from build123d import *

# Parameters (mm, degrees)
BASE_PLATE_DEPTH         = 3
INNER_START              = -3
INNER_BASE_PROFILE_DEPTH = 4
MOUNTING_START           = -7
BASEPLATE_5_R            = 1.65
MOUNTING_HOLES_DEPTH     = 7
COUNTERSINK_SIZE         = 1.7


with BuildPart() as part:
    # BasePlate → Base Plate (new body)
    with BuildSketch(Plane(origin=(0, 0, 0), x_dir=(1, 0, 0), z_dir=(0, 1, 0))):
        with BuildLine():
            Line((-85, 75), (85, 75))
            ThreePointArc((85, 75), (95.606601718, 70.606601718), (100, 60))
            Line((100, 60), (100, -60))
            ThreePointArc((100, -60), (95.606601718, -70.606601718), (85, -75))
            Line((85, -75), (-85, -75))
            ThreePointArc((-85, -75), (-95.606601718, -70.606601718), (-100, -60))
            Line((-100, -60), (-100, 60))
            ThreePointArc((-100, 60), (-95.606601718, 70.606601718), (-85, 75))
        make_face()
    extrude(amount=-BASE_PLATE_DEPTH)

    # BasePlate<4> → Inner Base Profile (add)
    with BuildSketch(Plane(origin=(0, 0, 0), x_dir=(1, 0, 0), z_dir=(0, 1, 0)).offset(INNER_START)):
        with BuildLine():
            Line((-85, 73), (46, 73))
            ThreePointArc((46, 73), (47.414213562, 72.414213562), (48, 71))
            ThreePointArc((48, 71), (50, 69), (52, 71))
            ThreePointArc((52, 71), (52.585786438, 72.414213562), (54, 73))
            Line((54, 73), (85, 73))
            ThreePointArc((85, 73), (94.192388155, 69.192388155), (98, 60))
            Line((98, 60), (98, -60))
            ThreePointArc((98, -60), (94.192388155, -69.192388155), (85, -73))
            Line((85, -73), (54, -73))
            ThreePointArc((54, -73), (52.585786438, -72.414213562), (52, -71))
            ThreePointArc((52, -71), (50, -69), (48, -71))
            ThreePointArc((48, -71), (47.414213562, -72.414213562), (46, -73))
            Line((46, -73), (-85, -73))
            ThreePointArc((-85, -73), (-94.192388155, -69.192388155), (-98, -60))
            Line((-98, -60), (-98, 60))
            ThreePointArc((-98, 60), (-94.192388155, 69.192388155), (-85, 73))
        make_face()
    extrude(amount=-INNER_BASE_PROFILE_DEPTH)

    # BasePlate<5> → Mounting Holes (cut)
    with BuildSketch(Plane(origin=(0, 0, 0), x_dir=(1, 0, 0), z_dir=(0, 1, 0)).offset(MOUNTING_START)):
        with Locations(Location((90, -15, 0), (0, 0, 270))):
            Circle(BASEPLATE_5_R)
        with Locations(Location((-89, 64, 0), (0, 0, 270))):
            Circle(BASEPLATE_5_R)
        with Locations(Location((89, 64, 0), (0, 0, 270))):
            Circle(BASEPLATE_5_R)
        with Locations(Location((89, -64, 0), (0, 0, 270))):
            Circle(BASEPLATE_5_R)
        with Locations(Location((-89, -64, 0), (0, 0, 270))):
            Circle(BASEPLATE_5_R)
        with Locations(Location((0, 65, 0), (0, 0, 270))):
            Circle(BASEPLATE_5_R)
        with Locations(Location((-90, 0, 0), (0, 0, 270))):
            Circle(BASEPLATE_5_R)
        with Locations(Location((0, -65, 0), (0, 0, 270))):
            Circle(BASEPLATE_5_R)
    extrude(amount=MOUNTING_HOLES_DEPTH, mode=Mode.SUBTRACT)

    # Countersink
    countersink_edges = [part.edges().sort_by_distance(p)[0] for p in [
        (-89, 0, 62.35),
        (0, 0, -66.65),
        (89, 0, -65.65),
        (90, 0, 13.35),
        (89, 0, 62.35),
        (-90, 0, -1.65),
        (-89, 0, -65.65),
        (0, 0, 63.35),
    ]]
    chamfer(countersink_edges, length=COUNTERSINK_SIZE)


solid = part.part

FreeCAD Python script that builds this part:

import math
import FreeCAD as App
import Part
import Sketcher

V = App.Vector
Q = App.Units.Quantity


def edges_at(feature, points):
    """Names of the edges that pass closest to the given points."""
    edges = feature.Shape.Edges
    near = lambda p: min(range(len(edges)), key=lambda i: edges[i].distToShape(Part.Vertex(*p))[0])
    return sorted({f"Edge{near(p) + 1}" for p in points})

doc = App.newDocument("Part")
body = doc.addObject("PartDesign::Body", "Body")

# Sketch on XZ plane
sketch1 = body.newObject("Sketcher::SketchObject", "Sketch")
sketch1.AttachmentSupport = (doc.getObject("XZ_Plane"), [""])
sketch1.MapMode = "FlatFace"
sketch1.addGeometry([
    Part.LineSegment(V(85, -75, 0), V(-85, -75, 0)),  # 0
    Part.ArcOfCircle(Part.Circle(V(-85, -60, 0), V(0, 0, 1), 15), math.radians(180), math.radians(270)),  # 1
    Part.LineSegment(V(-100, -60, 0), V(-100, 60, 0)),  # 2
    Part.ArcOfCircle(Part.Circle(V(-85, 60, 0), V(0, 0, 1), 15), math.radians(90), math.radians(180)),  # 3
    Part.LineSegment(V(-85, 75, 0), V(85, 75, 0)),  # 4
    Part.ArcOfCircle(Part.Circle(V(85, 60, 0), V(0, 0, 1), 15), math.radians(0), math.radians(90)),  # 5
    Part.LineSegment(V(100, 60, 0), V(100, -60, 0)),  # 6
    Part.ArcOfCircle(Part.Circle(V(85, -60, 0), V(0, 0, 1), 15), math.radians(-90), math.radians(0)),  # 7
], False)
sketch1.addConstraint([
    Sketcher.Constraint("Tangent", 0, 2, 1, 2),
    Sketcher.Constraint("Tangent", 1, 1, 2, 1),
    Sketcher.Constraint("Tangent", 2, 2, 3, 2),
    Sketcher.Constraint("Tangent", 3, 1, 4, 1),
    Sketcher.Constraint("Tangent", 4, 2, 5, 2),
    Sketcher.Constraint("Tangent", 5, 1, 6, 1),
    Sketcher.Constraint("Tangent", 6, 2, 7, 2),
    Sketcher.Constraint("Tangent", 7, 1, 0, 1),
    Sketcher.Constraint("Horizontal", 0),
    Sketcher.Constraint("Vertical", 2),
    Sketcher.Constraint("Horizontal", 4),
    Sketcher.Constraint("Vertical", 6),
    Sketcher.Constraint("Equal", 1, 3),
    Sketcher.Constraint("Equal", 3, 5),
    Sketcher.Constraint("Equal", 5, 7),
    Sketcher.Constraint("Symmetric", 1, 3, 5, 3, -1, 1),
    Sketcher.Constraint("Radius", 1, Q("15 mm")),
    Sketcher.Constraint("DistanceX", 0, 2, 0, 1, Q("170 mm")),
    Sketcher.Constraint("DistanceY", 2, 1, 2, 2, Q("120 mm")),
])
pad1 = body.newObject("PartDesign::Pad", "Pad")
pad1.Profile = sketch1
pad1.Length = 3

# Sketch on XZ plane
sketch2 = body.newObject("Sketcher::SketchObject", "Sketch001")
sketch2.AttachmentSupport = (doc.getObject("XZ_Plane"), [""])
sketch2.MapMode = "FlatFace"
sketch2.AttachmentOffset = App.Placement(V(0, 0, 3), App.Rotation())
sketch2.addGeometry([
    Part.LineSegment(V(46, -73, 0), V(-85, -73, 0)),  # 0
    Part.ArcOfCircle(Part.Circle(V(-85, -60, 0), V(0, 0, 1), 13), math.radians(-180), math.radians(-90)),  # 1
    Part.LineSegment(V(-98, -60, 0), V(-98, 60, 0)),  # 2
    Part.ArcOfCircle(Part.Circle(V(-85, 60, 0), V(0, 0, 1), 13), math.radians(90), math.radians(180)),  # 3
    Part.LineSegment(V(-85, 73, 0), V(46, 73, 0)),  # 4
    Part.ArcOfCircle(Part.Circle(V(46, 71, 0), V(0, 0, 1), 2), math.radians(0), math.radians(90)),  # 5
    Part.ArcOfCircle(Part.Circle(V(50, 71, 0), V(0, 0, 1), 2), math.radians(180), math.radians(360)),  # 6
    Part.ArcOfCircle(Part.Circle(V(54, 71, 0), V(0, 0, 1), 2), math.radians(90), math.radians(180)),  # 7
    Part.LineSegment(V(54, 73, 0), V(85, 73, 0)),  # 8
    Part.ArcOfCircle(Part.Circle(V(85, 60, 0), V(0, 0, 1), 13), math.radians(0), math.radians(90)),  # 9
    Part.LineSegment(V(98, 60, 0), V(98, -60, 0)),  # 10
    Part.ArcOfCircle(Part.Circle(V(85, -60, 0), V(0, 0, 1), 13), math.radians(-90), math.radians(0)),  # 11
    Part.LineSegment(V(85, -73, 0), V(54, -73, 0)),  # 12
    Part.ArcOfCircle(Part.Circle(V(54, -71, 0), V(0, 0, 1), 2), math.radians(-180), math.radians(-90)),  # 13
    Part.ArcOfCircle(Part.Circle(V(50, -71, 0), V(0, 0, 1), 2), math.radians(0), math.radians(180)),  # 14
    Part.ArcOfCircle(Part.Circle(V(46, -71, 0), V(0, 0, 1), 2), math.radians(-90), math.radians(0)),  # 15
], False)
sketch2.addConstraint([
    Sketcher.Constraint("Tangent", 0, 2, 1, 2),
    Sketcher.Constraint("Tangent", 1, 1, 2, 1),
    Sketcher.Constraint("Tangent", 2, 2, 3, 2),
    Sketcher.Constraint("Tangent", 3, 1, 4, 1),
    Sketcher.Constraint("Tangent", 4, 2, 5, 2),
    Sketcher.Constraint("Tangent", 5, 1, 6, 1),
    Sketcher.Constraint("Tangent", 6, 2, 7, 2),
    Sketcher.Constraint("Tangent", 7, 1, 8, 1),
    Sketcher.Constraint("Tangent", 8, 2, 9, 2),
    Sketcher.Constraint("Tangent", 9, 1, 10, 1),
    Sketcher.Constraint("Tangent", 10, 2, 11, 2),
    Sketcher.Constraint("Tangent", 11, 1, 12, 1),
    Sketcher.Constraint("Tangent", 12, 2, 13, 2),
    Sketcher.Constraint("Tangent", 13, 1, 14, 1),
    Sketcher.Constraint("Tangent", 14, 2, 15, 2),
    Sketcher.Constraint("Tangent", 15, 1, 0, 1),
    Sketcher.Constraint("Horizontal", 0),
    Sketcher.Constraint("Vertical", 2),
    Sketcher.Constraint("Horizontal", 4),
    Sketcher.Constraint("Horizontal", 8),
    Sketcher.Constraint("Vertical", 10),
    Sketcher.Constraint("Horizontal", 12),
    Sketcher.Constraint("Equal", 1, 3),
    Sketcher.Constraint("Equal", 5, 6),
    Sketcher.Constraint("Equal", 6, 7),
    Sketcher.Constraint("Equal", 3, 9),
    Sketcher.Constraint("Equal", 9, 11),
    Sketcher.Constraint("Equal", 7, 13),
    Sketcher.Constraint("Equal", 13, 14),
    Sketcher.Constraint("Equal", 14, 15),
    Sketcher.Constraint("Symmetric", 1, 3, 9, 3, -1, 1),
    Sketcher.Constraint("Symmetric", 7, 3, 13, 3, -1),
    Sketcher.Constraint("Horizontal", 5, 3, 6, 3),
    Sketcher.Constraint("Horizontal", 6, 3, 7, 3),
    Sketcher.Constraint("Horizontal", 13, 3, 14, 3),
    Sketcher.Constraint("Radius", 1, Q("13 mm")),
    Sketcher.Constraint("Radius", 5, Q("2 mm")),
    Sketcher.Constraint("DistanceX", 0, 2, 0, 1, Q("131 mm")),
    Sketcher.Constraint("DistanceX", 8, 1, 8, 2, Q("31 mm")),
    Sketcher.Constraint("DistanceY", 2, 1, 2, 2, Q("120 mm")),
])
pad2 = body.newObject("PartDesign::Pad", "Pad001")
pad2.Profile = sketch2
pad2.Length = 4

# Sketch on XZ plane
sketch3 = body.newObject("Sketcher::SketchObject", "Sketch002")
sketch3.AttachmentSupport = (doc.getObject("XZ_Plane"), [""])
sketch3.MapMode = "FlatFace"
sketch3.AttachmentOffset = App.Placement(V(0, 0, 7), App.Rotation())
sketch3.addGeometry([
    Part.Circle(V(90, 15, 0), V(0, 0, 1), 1.6),  # 0
    Part.Circle(V(-89, -64, 0), V(0, 0, 1), 1.6),  # 1
    Part.Circle(V(89, -64, 0), V(0, 0, 1), 1.6),  # 2
    Part.Circle(V(89, 64, 0), V(0, 0, 1), 1.6),  # 3
    Part.Circle(V(-89, 64, 0), V(0, 0, 1), 1.6),  # 4
    Part.Circle(V(0, -65, 0), V(0, 0, 1), 1.6),  # 5
    Part.Circle(V(-90, 0, 0), V(0, 0, 1), 1.6),  # 6
    Part.Circle(V(0, 65, 0), V(0, 0, 1), 1.6),  # 7
], False)
sketch3.addConstraint([
    Sketcher.Constraint("Equal", 0, 1),
    Sketcher.Constraint("Equal", 1, 2),
    Sketcher.Constraint("Equal", 2, 3),
    Sketcher.Constraint("Equal", 3, 4),
    Sketcher.Constraint("Equal", 4, 5),
    Sketcher.Constraint("Equal", 5, 6),
    Sketcher.Constraint("Equal", 6, 7),
    Sketcher.Constraint("Symmetric", 1, 3, 3, 3, -1, 1),
    Sketcher.Constraint("Symmetric", 2, 3, 4, 3, -1, 1),
    Sketcher.Constraint("Symmetric", 5, 3, 7, 3, -1, 1),
    Sketcher.Constraint("Symmetric", 1, 3, 2, 3, -2),
    Sketcher.Constraint("PointOnObject", 5, 3, -2),
    Sketcher.Constraint("PointOnObject", 6, 3, -1),
    Sketcher.Constraint("Diameter", 0, Q("3.3 mm")),
    Sketcher.Constraint("DistanceX", -1, 1, 0, 3, Q("90 mm")),
    Sketcher.Constraint("DistanceY", -1, 1, 0, 3, Q("15 mm")),
    Sketcher.Constraint("DistanceX", 1, 3, -1, 1, Q("89 mm")),
    Sketcher.Constraint("DistanceY", 1, 3, -1, 1, Q("64 mm")),
    Sketcher.Constraint("DistanceY", 5, 3, -1, 1, Q("65 mm")),
    Sketcher.Constraint("DistanceX", 6, 3, -1, 1, Q("90 mm")),
])
pocket1 = body.newObject("PartDesign::Pocket", "Pocket")
pocket1.Profile = sketch3
pocket1.Length = 7
doc.recompute()

chamfer = body.newObject("PartDesign::Chamfer", "Chamfer")
chamfer.Base = (pocket1, edges_at(pocket1, [
    (-89, 0, 62.35),
    (0, 0, -66.65),
    (89, 0, -65.65),
    (90, 0, 13.35),
    (89, 0, 62.35),
    (-90, 0, -1.65),
    (-89, 0, -65.65),
    (0, 0, 63.35),
]))
chamfer.Size = 1.7

doc.recompute()
